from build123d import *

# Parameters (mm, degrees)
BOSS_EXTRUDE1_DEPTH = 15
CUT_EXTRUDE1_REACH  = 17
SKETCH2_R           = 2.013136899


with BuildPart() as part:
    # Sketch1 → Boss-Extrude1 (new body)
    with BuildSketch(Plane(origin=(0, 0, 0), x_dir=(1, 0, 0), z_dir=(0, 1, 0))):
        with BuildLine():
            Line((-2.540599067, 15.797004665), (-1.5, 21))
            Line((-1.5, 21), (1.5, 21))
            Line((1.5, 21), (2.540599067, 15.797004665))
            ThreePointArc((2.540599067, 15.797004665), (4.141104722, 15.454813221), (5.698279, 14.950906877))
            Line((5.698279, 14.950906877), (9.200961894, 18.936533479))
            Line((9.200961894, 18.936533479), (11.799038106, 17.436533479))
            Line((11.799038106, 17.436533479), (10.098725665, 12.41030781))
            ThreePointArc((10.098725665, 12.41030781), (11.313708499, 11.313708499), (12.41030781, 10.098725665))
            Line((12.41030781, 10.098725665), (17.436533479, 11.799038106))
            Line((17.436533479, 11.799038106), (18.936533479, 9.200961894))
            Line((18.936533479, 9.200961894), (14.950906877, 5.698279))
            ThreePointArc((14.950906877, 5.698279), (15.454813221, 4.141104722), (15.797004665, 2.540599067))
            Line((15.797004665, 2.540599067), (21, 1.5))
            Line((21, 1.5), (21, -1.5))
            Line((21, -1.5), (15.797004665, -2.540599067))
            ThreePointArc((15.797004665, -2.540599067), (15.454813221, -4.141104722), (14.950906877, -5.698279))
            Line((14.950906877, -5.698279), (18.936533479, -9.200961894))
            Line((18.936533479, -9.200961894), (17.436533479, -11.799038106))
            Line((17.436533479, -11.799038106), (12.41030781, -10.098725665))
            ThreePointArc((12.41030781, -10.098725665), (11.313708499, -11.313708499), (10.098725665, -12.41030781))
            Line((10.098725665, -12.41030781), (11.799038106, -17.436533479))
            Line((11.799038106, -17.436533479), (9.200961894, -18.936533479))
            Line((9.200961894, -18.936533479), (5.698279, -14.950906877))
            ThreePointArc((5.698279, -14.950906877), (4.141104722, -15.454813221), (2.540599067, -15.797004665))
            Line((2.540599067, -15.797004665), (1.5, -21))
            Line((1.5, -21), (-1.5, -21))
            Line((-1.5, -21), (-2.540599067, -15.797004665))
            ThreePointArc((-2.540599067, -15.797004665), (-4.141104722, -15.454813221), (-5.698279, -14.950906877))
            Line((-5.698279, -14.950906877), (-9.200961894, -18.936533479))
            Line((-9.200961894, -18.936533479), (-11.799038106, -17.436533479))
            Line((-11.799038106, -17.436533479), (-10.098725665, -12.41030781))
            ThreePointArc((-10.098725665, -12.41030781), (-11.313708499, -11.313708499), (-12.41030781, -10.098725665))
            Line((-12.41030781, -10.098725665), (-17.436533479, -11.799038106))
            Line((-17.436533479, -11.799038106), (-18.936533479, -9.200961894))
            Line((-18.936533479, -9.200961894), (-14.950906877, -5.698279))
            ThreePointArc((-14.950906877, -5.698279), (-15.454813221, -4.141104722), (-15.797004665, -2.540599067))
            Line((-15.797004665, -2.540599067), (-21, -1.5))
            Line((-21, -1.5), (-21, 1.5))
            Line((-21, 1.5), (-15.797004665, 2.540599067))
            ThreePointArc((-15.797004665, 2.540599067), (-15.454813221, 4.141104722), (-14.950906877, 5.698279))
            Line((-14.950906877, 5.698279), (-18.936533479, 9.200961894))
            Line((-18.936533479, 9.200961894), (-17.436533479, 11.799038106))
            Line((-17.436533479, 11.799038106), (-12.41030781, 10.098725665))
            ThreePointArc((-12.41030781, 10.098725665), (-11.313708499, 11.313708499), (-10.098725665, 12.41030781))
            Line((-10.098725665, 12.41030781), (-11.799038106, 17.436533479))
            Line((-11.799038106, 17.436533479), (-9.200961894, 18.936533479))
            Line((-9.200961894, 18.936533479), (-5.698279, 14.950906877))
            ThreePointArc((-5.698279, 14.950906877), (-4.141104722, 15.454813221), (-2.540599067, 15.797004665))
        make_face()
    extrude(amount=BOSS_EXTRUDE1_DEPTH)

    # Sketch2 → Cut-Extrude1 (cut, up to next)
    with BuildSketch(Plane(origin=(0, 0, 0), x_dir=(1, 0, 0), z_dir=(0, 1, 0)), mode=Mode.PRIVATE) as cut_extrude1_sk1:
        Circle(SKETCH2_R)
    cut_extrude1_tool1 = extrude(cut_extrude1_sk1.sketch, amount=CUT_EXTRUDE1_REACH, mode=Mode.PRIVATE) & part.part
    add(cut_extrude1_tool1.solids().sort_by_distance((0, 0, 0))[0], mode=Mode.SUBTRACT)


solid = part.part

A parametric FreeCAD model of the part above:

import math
import FreeCAD as App
import Part
import Sketcher
Q = App.Units.Quantity

doc = App.newDocument("Part")
params = doc.addObject("Spreadsheet::Sheet", "Params")
for row, (alias, value) in enumerate([
    ("sketch1_radius", "16 mm"),
    ("sketch1_width", "3 mm"),
    ("sketch1_length", "3 mm"),
    ("pad1_length", "15 mm"),
], start=1):
    params.set(f"A{row}", alias)
    params.set(f"B{row}", "=" + value)
    params.setAlias(f"B{row}", alias)

body = doc.addObject("PartDesign::Body", "Body")

# Sketch on XZ plane
sketch1 = body.newObject("Sketcher::SketchObject", "Sketch")
sketch1.AttachmentSupport = (doc.getObject("XZ_Plane"), [""])
sketch1.MapMode = "FlatFace"
sketch1.addGeometry(Part.LineSegment(App.Vector(-1.5, -21, 0), App.Vector(-2.5, -15.8, 0)), False)
sketch1.addGeometry(Part.ArcOfCircle(Part.Circle(App.Vector(0, 0, 0), App.Vector(0, 0, 1), 16), math.radians(-110.86), math.radians(-99.14)), False)
sketch1.addGeometry(Part.LineSegment(App.Vector(-5.7, -15, 0), App.Vector(-9.2, -18.9, 0)), False)
sketch1.addGeometry(Part.LineSegment(App.Vector(-9.2, -18.9, 0), App.Vector(-11.8, -17.4, 0)), False)
sketch1.addGeometry(Part.LineSegment(App.Vector(-11.8, -17.4, 0), App.Vector(-10.1, -12.4, 0)), False)
sketch1.addGeometry(Part.ArcOfCircle(Part.Circle(App.Vector(0, 0, 0), App.Vector(0, 0, 1), 16), math.radians(-140.86), math.radians(-129.14)), False)
sketch1.addGeometry(Part.LineSegment(App.Vector(-12.4, -10.1, 0), App.Vector(-17.4, -11.8, 0)), False)
sketch1.addGeometry(Part.LineSegment(App.Vector(-17.4, -11.8, 0), App.Vector(-18.9, -9.2, 0)), False)
sketch1.addGeometry(Part.LineSegment(App.Vector(-18.9, -9.2, 0), App.Vector(-15, -5.7, 0)), False)
sketch1.addGeometry(Part.ArcOfCircle(Part.Circle(App.Vector(0, 0, 0), App.Vector(0, 0, 1), 16), math.radians(-170.86), math.radians(-159.14)), False)
sketch1.addGeometry(Part.LineSegment(App.Vector(-15.8, -2.5, 0), App.Vector(-21, -1.5, 0)), False)
sketch1.addGeometry(Part.LineSegment(App.Vector(-21, -1.5, 0), App.Vector(-21, 1.5, 0)), False)
sketch1.addGeometry(Part.LineSegment(App.Vector(-21, 1.5, 0), App.Vector(-15.8, 2.5, 0)), False)
sketch1.addGeometry(Part.ArcOfCircle(Part.Circle(App.Vector(0, 0, 0), App.Vector(0, 0, 1), 16), math.radians(159.14), math.radians(170.86)), False)
sketch1.addGeometry(Part.LineSegment(App.Vector(-15, 5.7, 0), App.Vector(-18.9, 9.2, 0)), False)
sketch1.addGeometry(Part.LineSegment(App.Vector(-18.9, 9.2, 0), App.Vector(-17.4, 11.8, 0)), False)
sketch1.addGeometry(Part.LineSegment(App.Vector(-17.4, 11.8, 0), App.Vector(-12.4, 10.1, 0)), False)
sketch1.addGeometry(Part.ArcOfCircle(Part.Circle(App.Vector(0, 0, 0), App.Vector(0, 0, 1), 16), math.radians(129.14), math.radians(140.86)), False)
sketch1.addGeometry(Part.LineSegment(App.Vector(-10.1, 12.4, 0), App.Vector(-11.8, 17.4, 0)), False)
sketch1.addGeometry(Part.LineSegment(App.Vector(-11.8, 17.4, 0), App.Vector(-9.2, 18.9, 0)), False)
sketch1.addGeometry(Part.LineSegment(App.Vector(-9.2, 18.9, 0), App.Vector(-5.7, 15, 0)), False)
sketch1.addGeometry(Part.ArcOfCircle(Part.Circle(App.Vector(0, 0, 0), App.Vector(0, 0, 1), 16), math.radians(99.14), math.radians(110.86)), False)
sketch1.addGeometry(Part.LineSegment(App.Vector(-2.5, 15.8, 0), App.Vector(-1.5, 21, 0)), False)
sketch1.addGeometry(Part.LineSegment(App.Vector(-1.5, 21, 0), App.Vector(1.5, 21, 0)), False)
sketch1.addGeometry(Part.LineSegment(App.Vector(1.5, 21, 0), App.Vector(2.5, 15.8, 0)), False)
sketch1.addGeometry(Part.ArcOfCircle(Part.Circle(App.Vector(0, 0, 0), App.Vector(0, 0, 1), 16), math.radians(69.14), math.radians(80.86)), False)
sketch1.addGeometry(Part.LineSegment(App.Vector(5.7, 15, 0), App.Vector(9.2, 18.9, 0)), False)
sketch1.addGeometry(Part.LineSegment(App.Vector(9.2, 18.9, 0), App.Vector(11.8, 17.4, 0)), False)
sketch1.addGeometry(Part.LineSegment(App.Vector(11.8, 17.4, 0), App.Vector(10.1, 12.4, 0)), False)
sketch1.addGeometry(Part.ArcOfCircle(Part.Circle(App.Vector(0, 0, 0), App.Vector(0, 0, 1), 16), math.radians(39.14), math.radians(50.86)), False)
sketch1.addGeometry(Part.LineSegment(App.Vector(12.4, 10.1, 0), App.Vector(17.4, 11.8, 0)), False)
sketch1.addGeometry(Part.LineSegment(App.Vector(17.4, 11.8, 0), App.Vector(18.9, 9.2, 0)), False)
sketch1.addGeometry(Part.LineSegment(App.Vector(18.9, 9.2, 0), App.Vector(15, 5.7, 0)), False)
sketch1.addGeometry(Part.ArcOfCircle(Part.Circle(App.Vector(0, 0, 0), App.Vector(0, 0, 1), 16), math.radians(9.14), math.radians(20.86)), False)
sketch1.addGeometry(Part.LineSegment(App.Vector(15.8, 2.5, 0), App.Vector(21, 1.5, 0)), False)
sketch1.addGeometry(Part.LineSegment(App.Vector(21, 1.5, 0), App.Vector(21, -1.5, 0)), False)
sketch1.addGeometry(Part.LineSegment(App.Vector(21, -1.5, 0), App.Vector(15.8, -2.5, 0)), False)
sketch1.addGeometry(Part.ArcOfCircle(Part.Circle(App.Vector(0, 0, 0), App.Vector(0, 0, 1), 16), math.radians(-20.86), math.radians(-9.14)), False)
sketch1.addGeometry(Part.LineSegment(App.Vector(15, -5.7, 0), App.Vector(18.9, -9.2, 0)), False)
sketch1.addGeometry(Part.LineSegment(App.Vector(18.9, -9.2, 0), App.Vector(17.4, -11.8, 0)), False)
sketch1.addGeometry(Part.LineSegment(App.Vector(17.4, -11.8, 0), App.Vector(12.4, -10.1, 0)), False)
sketch1.addGeometry(Part.ArcOfCircle(Part.Circle(App.Vector(0, 0, 0), App.Vector(0, 0, 1), 16), math.radians(-50.86), math.radians(-39.14)), False)
sketch1.addGeometry(Part.LineSegment(App.Vector(10.1, -12.4, 0), App.Vector(11.8, -17.4, 0)), False)
sketch1.addGeometry(Part.LineSegment(App.Vector(11.8, -17.4, 0), App.Vector(9.2, -18.9, 0)), False)
sketch1.addGeometry(Part.LineSegment(App.Vector(9.2, -18.9, 0), App.Vector(5.7, -15, 0)), False)
sketch1.addGeometry(Part.ArcOfCircle(Part.Circle(App.Vector(0, 0, 0), App.Vector(0, 0, 1), 16), math.radians(-80.86), math.radians(-69.14)), False)
sketch1.addGeometry(Part.LineSegment(App.Vector(2.5, -15.8, 0), App.Vector(1.5, -21, 0)), False)
sketch1.addGeometry(Part.LineSegment(App.Vector(1.5, -21, 0), App.Vector(-1.5, -21, 0)), False)
sketch1.addConstraint(Sketcher.Constraint("Coincident", 0, 2, 1, 2))
sketch1.addConstraint(Sketcher.Constraint("Coincident", 1, 1, 2, 1))
sketch1.addConstraint(Sketcher.Constraint("Coincident", 2, 2, 3, 1))
sketch1.addConstraint(Sketcher.Constraint("Coincident", 3, 2, 4, 1))
sketch1.addConstraint(Sketcher.Constraint("Coincident", 4, 2, 5, 2))
sketch1.addConstraint(Sketcher.Constraint("Coincident", 5, 1, 6, 1))
sketch1.addConstraint(Sketcher.Constraint("Coincident", 6, 2, 7, 1))
sketch1.addConstraint(Sketcher.Constraint("Coincident", 7, 2, 8, 1))
sketch1.addConstraint(Sketcher.Constraint("Coincident", 8, 2, 9, 2))
sketch1.addConstraint(Sketcher.Constraint("Coincident", 9, 1, 10, 1))
sketch1.addConstraint(Sketcher.Constraint("Coincident", 10, 2, 11, 1))
sketch1.addConstraint(Sketcher.Constraint("Coincident", 11, 2, 12, 1))
sketch1.addConstraint(Sketcher.Constraint("Coincident", 12, 2, 13, 2))
sketch1.addConstraint(Sketcher.Constraint("Coincident", 13, 1, 14, 1))
sketch1.addConstraint(Sketcher.Constraint("Coincident", 14, 2, 15, 1))
sketch1.addConstraint(Sketcher.Constraint("Coincident", 15, 2, 16, 1))
sketch1.addConstraint(Sketcher.Constraint("Coincident", 16, 2, 17, 2))
sketch1.addConstraint(Sketcher.Constraint("Coincident", 17, 1, 18, 1))
sketch1.addConstraint(Sketcher.Constraint("Coincident", 18, 2, 19, 1))
sketch1.addConstraint(Sketcher.Constraint("Coincident", 19, 2, 20, 1))
sketch1.addConstraint(Sketcher.Constraint("Coincident", 20, 2, 21, 2))
sketch1.addConstraint(Sketcher.Constraint("Coincident", 21, 1, 22, 1))
sketch1.addConstraint(Sketcher.Constraint("Coincident", 22, 2, 23, 1))
sketch1.addConstraint(Sketcher.Constraint("Coincident", 23, 2, 24, 1))
sketch1.addConstraint(Sketcher.Constraint("Coincident", 24, 2, 25, 2))
sketch1.addConstraint(Sketcher.Constraint("Coincident", 25, 1, 26, 1))
sketch1.addConstraint(Sketcher.Constraint("Coincident", 26, 2, 27, 1))
sketch1.addConstraint(Sketcher.Constraint("Coincident", 27, 2, 28, 1))
sketch1.addConstraint(Sketcher.Constraint("Coincident", 28, 2, 29, 2))
sketch1.addConstraint(Sketcher.Constraint("Coincident", 29, 1, 30, 1))
sketch1.addConstraint(Sketcher.Constraint("Coincident", 30, 2, 31, 1))
sketch1.addConstraint(Sketcher.Constraint("Coincident", 31, 2, 32, 1))
sketch1.addConstraint(Sketcher.Constraint("Coincident", 32, 2, 33, 2))
sketch1.addConstraint(Sketcher.Constraint("Coincident", 33, 1, 34, 1))
sketch1.addConstraint(Sketcher.Constraint("Coincident", 34, 2, 35, 1))
sketch1.addConstraint(Sketcher.Constraint("Coincident", 35, 2, 36, 1))
sketch1.addConstraint(Sketcher.Constraint("Coincident", 36, 2, 37, 2))
sketch1.addConstraint(Sketcher.Constraint("Coincident", 37, 1, 38, 1))
sketch1.addConstraint(Sketcher.Constraint("Coincident", 38, 2, 39, 1))
sketch1.addConstraint(Sketcher.Constraint("Coincident", 39, 2, 40, 1))
sketch1.addConstraint(Sketcher.Constraint("Coincident", 40, 2, 41, 2))
sketch1.addConstraint(Sketcher.Constraint("Coincident", 41, 1, 42, 1))
sketch1.addConstraint(Sketcher.Constraint("Coincident", 42, 2, 43, 1))
sketch1.addConstraint(Sketcher.Constraint("Coincident", 43, 2, 44, 1))
sketch1.addConstraint(Sketcher.Constraint("Coincident", 44, 2, 45, 2))
sketch1.addConstraint(Sketcher.Constraint("Coincident", 45, 1, 46, 1))
sketch1.addConstraint(Sketcher.Constraint("Coincident", 46, 2, 47, 1))
sketch1.addConstraint(Sketcher.Constraint("Coincident", 47, 2, 0, 1))
sketch1.addConstraint(Sketcher.Constraint("Vertical", 11))
sketch1.addConstraint(Sketcher.Constraint("Horizontal", 23))
sketch1.addConstraint(Sketcher.Constraint("Vertical", 35))
sketch1.addConstraint(Sketcher.Constraint("Horizontal", 47))
sketch1.addConstraint(Sketcher.Constraint("Coincident", 1, 3, -1, 1))
sketch1.addConstraint(Sketcher.Constraint("Coincident", 5, 3, -1, 1))
sketch1.addConstraint(Sketcher.Constraint("Coincident", 9, 3, -1, 1))
sketch1.addConstraint(Sketcher.Constraint("Coincident", 13, 3, -1, 1))
sketch1.addConstraint(Sketcher.Constraint("Coincident", 17, 3, -1, 1))
sketch1.addConstraint(Sketcher.Constraint("Coincident", 21, 3, -1, 1))
sketch1.addConstraint(Sketcher.Constraint("Coincident", 25, 3, -1, 1))
sketch1.addConstraint(Sketcher.Constraint("Coincident", 29, 3, -1, 1))
sketch1.addConstraint(Sketcher.Constraint("Coincident", 33, 3, -1, 1))
sketch1.addConstraint(Sketcher.Constraint("Coincident", 37, 3, -1, 1))
sketch1.addConstraint(Sketcher.Constraint("Coincident", 41, 3, -1, 1))
sketch1.addConstraint(Sketcher.Constraint("Coincident", 45, 3, -1, 1))
sketch1.addConstraint(Sketcher.Constraint("Equal", 1, 5))
sketch1.addConstraint(Sketcher.Constraint("Equal", 5, 9))
sketch1.addConstraint(Sketcher.Constraint("Equal", 9, 13))
sketch1.addConstraint(Sketcher.Constraint("Equal", 13, 17))
sketch1.addConstraint(Sketcher.Constraint("Equal", 17, 21))
sketch1.addConstraint(Sketcher.Constraint("Equal", 21, 25))
sketch1.addConstraint(Sketcher.Constraint("Equal", 25, 29))
sketch1.addConstraint(Sketcher.Constraint("Equal", 29, 33))
sketch1.addConstraint(Sketcher.Constraint("Equal", 33, 37))
sketch1.addConstraint(Sketcher.Constraint("Equal", 37, 41))
sketch1.addConstraint(Sketcher.Constraint("Equal", 41, 45))
sketch1.addConstraint(Sketcher.Constraint("Symmetric", 2, 2, 26, 2, -1, 1))
sketch1.addConstraint(Sketcher.Constraint("Symmetric", 3, 2, 27, 2, -1, 1))
sketch1.addConstraint(Sketcher.Constraint("Symmetric", 6, 2, 30, 2, -1, 1))
sketch1.addConstraint(Sketcher.Constraint("Symmetric", 7, 2, 31, 2, -1, 1))
sketch1.addConstraint(Sketcher.Constraint("Symmetric", 10, 2, 34, 2, -1, 1))
sketch1.addConstraint(Sketcher.Constraint("Symmetric", 14, 2, 38, 2, -1, 1))
sketch1.addConstraint(Sketcher.Constraint("Symmetric", 15, 2, 39, 2, -1, 1))
sketch1.addConstraint(Sketcher.Constraint("Symmetric", 18, 2, 42, 2, -1, 1))
sketch1.addConstraint(Sketcher.Constraint("Symmetric", 19, 2, 43, 2, -1, 1))
sketch1.addConstraint(Sketcher.Constraint("Symmetric", 22, 2, 46, 2, -1, 1))
sketch1.addConstraint(Sketcher.Constraint("Symmetric", 19, 2, 26, 2, -2))
sketch1.addConstraint(Sketcher.Constraint("Symmetric", 18, 2, 27, 2, -2))
sketch1.addConstraint(Sketcher.Constraint("Symmetric", 15, 2, 30, 2, -2))
sketch1.addConstraint(Sketcher.Constraint("Symmetric", 14, 2, 31, 2, -2))
sketch1.addConstraint(Sketcher.Constraint("Perpendicular", 0, 12))
sketch1.addConstraint(Sketcher.Constraint("Perpendicular", 2, 14))
sketch1.addConstraint(Sketcher.Constraint("Perpendicular", 3, 15))
sketch1.addConstraint(Sketcher.Constraint("Perpendicular", 4, 16))
sketch1.addConstraint(Sketcher.Constraint("Perpendicular", 6, 18))
sketch1.addConstraint(Sketcher.Constraint("Perpendicular", 8, 20))
sketch1.addConstraint(Sketcher.Constraint("Perpendicular", 10, 22))
sketch1.addConstraint(Sketcher.Constraint("Perpendicular", 12, 24))
sketch1.addConstraint(Sketcher.Constraint("Perpendicular", 14, 26))
sketch1.addConstraint(Sketcher.Constraint("Perpendicular", 16, 28))
sketch1.addConstraint(Sketcher.Constraint("Perpendicular", 18, 30))
sketch1.addConstraint(Sketcher.Constraint("Perpendicular", 20, 32))
sketch1.addConstraint(Sketcher.Constraint("Perpendicular", 22, 34))
sketch1.addConstraint(Sketcher.Constraint("Perpendicular", 24, 36))
sketch1.addConstraint(Sketcher.Constraint("Perpendicular", 26, 38))
sketch1.addConstraint(Sketcher.Constraint("Perpendicular", 28, 40))
sketch1.addConstraint(Sketcher.Constraint("Perpendicular", 30, 42))
sketch1.addConstraint(Sketcher.Constraint("Perpendicular", 32, 44))
sketch1.addConstraint(Sketcher.Constraint("Perpendicular", 34, 46))
sketch1.addConstraint(Sketcher.Constraint("Horizontal", 21, 1, 24, 2))
sketch1.addConstraint(Sketcher.Constraint("Horizontal", 20, 2, 25, 1))
sketch1.addConstraint(Sketcher.Constraint("Horizontal", 17, 1, 28, 2))
sketch1.addConstraint(Sketcher.Constraint("Horizontal", 12, 2, 33, 1))
sketch1.addConstraint(Sketcher.Constraint("Horizontal", 11, 2, 34, 2))
sketch1.addConstraint(Sketcher.Constraint("Horizontal", 10, 2, 35, 2))
sketch1.addConstraint(Sketcher.Constraint("Horizontal", 0, 2, 45, 1))
sketch1.addConstraint(Sketcher.Constraint("Equal", 47, 11))
sketch1.addConstraint(Sketcher.Constraint("Equal", 0, 2))
sketch1.addConstraint(Sketcher.Constraint("Equal", 2, 4))
sketch1.addConstraint(Sketcher.Constraint("Equal", 4, 6))
sketch1.addConstraint(Sketcher.Constraint("Equal", 3, 7))
sketch1.addConstraint(Sketcher.Constraint("Equal", 6, 8))
sketch1.addConstraint(Sketcher.Constraint("Equal", 8, 10))
sketch1.addConstraint(Sketcher.Constraint("Radius", 1, Q("16 mm")))
sketch1.addConstraint(Sketcher.Constraint("DistanceX", 23, 1, 23, 2, Q("3 mm")))
sketch1.addConstraint(Sketcher.Constraint("Angle", 3, Q("150 deg")))
sketch1.addConstraint(Sketcher.Constraint("Distance", 3, Q("3 mm")))
sketch1.addConstraint(Sketcher.Constraint("DistanceX", 10, 2, -1, 1, Q("21 mm")))
sketch1.addConstraint(Sketcher.Constraint("DistanceX", 0, 2, -1, 1, Q("2.540599 mm")))
sketch1.addConstraint(Sketcher.Constraint("DistanceY", 1, 1, 4, 2, Q("2.540599 mm")))
sketch1.addConstraint(Sketcher.Constraint("DistanceX", 1, 1, -1, 1, Q("5.698279 mm")))
sketch1.setExpression("Constraints[122]", "Params.sketch1_radius")
sketch1.setExpression("Constraints[123]", "Params.sketch1_width")
sketch1.setExpression("Constraints[125]", "Params.sketch1_length")
pad1 = body.newObject("PartDesign::Pad", "Pad")
pad1.Profile = sketch1
pad1.setExpression("Length", "Params.pad1_length")
pad1.Reversed = True

# Sketch on XZ plane
sketch2 = body.newObject("Sketcher::SketchObject", "Sketch001")
sketch2.AttachmentSupport = (doc.getObject("XZ_Plane"), [""])
sketch2.MapMode = "FlatFace"
sketch2.addGeometry(Part.Circle(App.Vector(0, 0, 0), App.Vector(0, 0, 1), 2), False)
sketch2.addConstraint(Sketcher.Constraint("Coincident", 0, 3, -1, 1))
sketch2.addConstraint(Sketcher.Constraint("Diameter", 0, Q("4.026274 mm")))
pocket1 = body.newObject("PartDesign::Pocket", "Pocket")
pocket1.Profile = sketch2
pocket1.Type = "UpToFirst"

doc.recompute()
